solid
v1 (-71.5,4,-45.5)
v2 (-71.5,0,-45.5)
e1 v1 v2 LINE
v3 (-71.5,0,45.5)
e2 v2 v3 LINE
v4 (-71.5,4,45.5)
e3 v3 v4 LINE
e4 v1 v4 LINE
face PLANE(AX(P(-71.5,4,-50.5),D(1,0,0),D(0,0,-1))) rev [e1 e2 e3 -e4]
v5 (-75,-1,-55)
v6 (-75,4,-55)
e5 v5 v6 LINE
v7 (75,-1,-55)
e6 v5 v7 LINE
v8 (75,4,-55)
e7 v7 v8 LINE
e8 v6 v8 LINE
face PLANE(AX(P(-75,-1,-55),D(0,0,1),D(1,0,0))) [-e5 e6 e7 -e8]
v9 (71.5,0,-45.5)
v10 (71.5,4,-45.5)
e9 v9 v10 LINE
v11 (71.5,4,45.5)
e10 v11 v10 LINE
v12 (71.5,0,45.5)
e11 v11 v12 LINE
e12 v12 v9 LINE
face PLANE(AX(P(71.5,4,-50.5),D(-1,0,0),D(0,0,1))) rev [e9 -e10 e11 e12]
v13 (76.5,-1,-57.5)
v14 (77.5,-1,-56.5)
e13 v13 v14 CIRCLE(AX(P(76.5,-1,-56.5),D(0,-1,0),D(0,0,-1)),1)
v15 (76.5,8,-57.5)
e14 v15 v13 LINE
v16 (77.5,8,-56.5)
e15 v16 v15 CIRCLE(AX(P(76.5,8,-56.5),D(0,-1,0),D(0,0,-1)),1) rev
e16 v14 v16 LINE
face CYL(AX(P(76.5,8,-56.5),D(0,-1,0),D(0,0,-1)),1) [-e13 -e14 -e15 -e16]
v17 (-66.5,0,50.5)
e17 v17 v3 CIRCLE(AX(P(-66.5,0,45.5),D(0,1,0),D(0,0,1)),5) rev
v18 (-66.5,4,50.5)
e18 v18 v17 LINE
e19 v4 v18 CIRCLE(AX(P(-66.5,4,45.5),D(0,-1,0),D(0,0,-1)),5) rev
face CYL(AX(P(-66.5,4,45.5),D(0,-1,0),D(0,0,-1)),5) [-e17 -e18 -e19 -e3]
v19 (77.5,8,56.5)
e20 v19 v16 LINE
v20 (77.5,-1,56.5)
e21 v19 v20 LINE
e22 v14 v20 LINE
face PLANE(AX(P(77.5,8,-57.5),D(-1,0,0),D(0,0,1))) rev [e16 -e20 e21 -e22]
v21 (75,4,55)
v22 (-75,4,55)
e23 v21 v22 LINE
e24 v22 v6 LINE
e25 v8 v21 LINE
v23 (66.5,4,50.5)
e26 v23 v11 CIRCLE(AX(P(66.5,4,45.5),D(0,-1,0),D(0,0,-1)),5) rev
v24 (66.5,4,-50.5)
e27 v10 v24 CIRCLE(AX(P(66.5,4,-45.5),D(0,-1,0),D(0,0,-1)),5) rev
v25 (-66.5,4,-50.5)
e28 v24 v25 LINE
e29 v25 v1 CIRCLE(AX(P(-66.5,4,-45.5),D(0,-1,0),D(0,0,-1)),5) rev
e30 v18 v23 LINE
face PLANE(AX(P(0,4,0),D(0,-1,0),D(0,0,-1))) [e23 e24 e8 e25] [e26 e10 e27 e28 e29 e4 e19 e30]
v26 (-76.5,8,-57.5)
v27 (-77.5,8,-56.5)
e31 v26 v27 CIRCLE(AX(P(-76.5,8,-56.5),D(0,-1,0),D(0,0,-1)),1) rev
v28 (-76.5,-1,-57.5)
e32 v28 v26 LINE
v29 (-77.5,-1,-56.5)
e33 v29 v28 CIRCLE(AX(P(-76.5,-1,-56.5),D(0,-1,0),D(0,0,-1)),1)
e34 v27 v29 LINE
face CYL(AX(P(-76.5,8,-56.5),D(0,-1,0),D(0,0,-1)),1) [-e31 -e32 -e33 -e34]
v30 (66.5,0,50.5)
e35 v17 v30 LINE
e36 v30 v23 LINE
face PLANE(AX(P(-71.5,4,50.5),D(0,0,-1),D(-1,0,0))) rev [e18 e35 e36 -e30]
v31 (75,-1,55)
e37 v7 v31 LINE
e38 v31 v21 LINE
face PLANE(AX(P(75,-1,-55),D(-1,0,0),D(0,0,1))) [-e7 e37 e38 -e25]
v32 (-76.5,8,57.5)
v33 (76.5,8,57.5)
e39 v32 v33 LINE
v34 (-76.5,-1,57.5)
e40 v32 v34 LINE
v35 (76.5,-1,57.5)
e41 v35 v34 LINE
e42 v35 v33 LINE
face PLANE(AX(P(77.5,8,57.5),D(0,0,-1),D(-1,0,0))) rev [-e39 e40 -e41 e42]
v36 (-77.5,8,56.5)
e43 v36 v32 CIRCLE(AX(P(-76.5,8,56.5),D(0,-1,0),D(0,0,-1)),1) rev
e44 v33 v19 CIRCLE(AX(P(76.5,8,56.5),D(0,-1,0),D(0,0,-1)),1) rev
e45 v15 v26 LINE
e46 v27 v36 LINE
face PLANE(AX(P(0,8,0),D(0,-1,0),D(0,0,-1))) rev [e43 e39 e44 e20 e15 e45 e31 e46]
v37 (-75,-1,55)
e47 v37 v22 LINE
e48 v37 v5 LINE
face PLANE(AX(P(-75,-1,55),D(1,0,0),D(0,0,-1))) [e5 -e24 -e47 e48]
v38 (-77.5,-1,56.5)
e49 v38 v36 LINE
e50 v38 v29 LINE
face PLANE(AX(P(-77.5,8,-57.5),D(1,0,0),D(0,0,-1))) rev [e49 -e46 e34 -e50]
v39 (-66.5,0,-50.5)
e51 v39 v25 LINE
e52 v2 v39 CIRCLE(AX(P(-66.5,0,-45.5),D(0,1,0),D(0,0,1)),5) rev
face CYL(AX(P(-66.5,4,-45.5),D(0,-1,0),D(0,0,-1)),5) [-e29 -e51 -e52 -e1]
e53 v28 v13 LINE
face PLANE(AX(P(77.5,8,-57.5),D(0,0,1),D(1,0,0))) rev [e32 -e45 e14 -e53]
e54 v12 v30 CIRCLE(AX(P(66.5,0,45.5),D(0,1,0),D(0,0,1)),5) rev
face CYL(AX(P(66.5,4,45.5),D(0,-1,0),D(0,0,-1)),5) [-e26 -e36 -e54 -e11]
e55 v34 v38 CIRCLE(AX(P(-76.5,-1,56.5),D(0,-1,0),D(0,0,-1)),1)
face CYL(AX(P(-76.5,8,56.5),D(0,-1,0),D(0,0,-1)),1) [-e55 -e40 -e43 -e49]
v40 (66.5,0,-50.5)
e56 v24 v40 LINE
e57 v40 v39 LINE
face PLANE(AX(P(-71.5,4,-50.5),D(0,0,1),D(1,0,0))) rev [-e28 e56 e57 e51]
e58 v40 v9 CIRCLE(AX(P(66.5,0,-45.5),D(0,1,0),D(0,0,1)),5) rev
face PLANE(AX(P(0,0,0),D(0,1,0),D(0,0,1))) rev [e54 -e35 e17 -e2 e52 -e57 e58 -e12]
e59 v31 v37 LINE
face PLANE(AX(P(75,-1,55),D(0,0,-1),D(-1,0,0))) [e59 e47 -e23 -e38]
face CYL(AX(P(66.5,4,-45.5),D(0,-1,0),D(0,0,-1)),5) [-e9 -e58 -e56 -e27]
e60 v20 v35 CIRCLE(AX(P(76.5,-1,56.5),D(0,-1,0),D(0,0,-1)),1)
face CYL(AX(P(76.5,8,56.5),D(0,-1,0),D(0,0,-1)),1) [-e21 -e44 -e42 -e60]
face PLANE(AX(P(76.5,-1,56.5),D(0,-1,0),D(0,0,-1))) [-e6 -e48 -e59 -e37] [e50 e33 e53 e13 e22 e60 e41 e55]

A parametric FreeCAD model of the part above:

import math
import FreeCAD as App
import Part
import Sketcher
from FreeCAD import Vector


def edges_at(feature, points):
    """Names of the edges that pass closest to the given points."""
    edges = feature.Shape.Edges
    near = lambda p: min(range(len(edges)), key=lambda i: edges[i].distToShape(Part.Vertex(*p))[0])
    return sorted({f"Edge{near(p) + 1}" for p in points})


def add_polygon(sketch, points):
    """Adds a closed chain of lines whose ends are joined by coincident constraints."""
    first, n = sketch.GeometryCount, len(points)
    for a, b in zip(points, points[1:] + points[:1]):
        sketch.addGeometry(Part.LineSegment(App.Vector(*a, 0), App.Vector(*b, 0)), False)
    for i in range(n):
        sketch.addConstraint(Sketcher.Constraint("Coincident", first + i, 2, first + (i + 1) % n, 1))

doc = App.newDocument("Part")
body = doc.addObject("PartDesign::Body", "Body")

# Sketch on XZ plane
sketch1 = body.newObject("Sketcher::SketchObject", "Sketch")
sketch1.AttachmentSupport = (doc.getObject("XZ_Plane"), [""])
sketch1.MapMode = "FlatFace"
add_polygon(sketch1, [(-72, -50), (-72, 50), (72, 50), (72, -50)])  # lines 0-3
sketch1.addConstraint([
    Sketcher.Constraint("Vertical", 0),
    Sketcher.Constraint("Horizontal", 1),
    Sketcher.Constraint("Vertical", 2),
    Sketcher.Constraint("Horizontal", 3),
    Sketcher.Constraint("Symmetric", 0, 2, 2, 2, -1, 1),
    Sketcher.Constraint("DistanceX", 1, 1, 1, 2, 143.0),
    Sketcher.Constraint("DistanceY", 0, 1, 0, 2, 101.0),
])
pad1 = body.newObject("PartDesign::Pad", "Pad")
pad1.Profile = sketch1
pad1.Length = 4
pad1.Reversed = True

# Sketch on XZ plane
sketch2 = body.newObject("Sketcher::SketchObject", "Sketch001")
sketch2.AttachmentSupport = (doc.getObject("XZ_Plane"), [""])
sketch2.MapMode = "FlatFace"
sketch2.AttachmentOffset = App.Placement(Vector(0, 0, -4), App.Rotation())
add_polygon(sketch2, [(-78, -58), (-78, 58), (78, 58), (78, -58)])  # lines 0-3
sketch2.addConstraint([
    Sketcher.Constraint("Vertical", 0),
    Sketcher.Constraint("Horizontal", 1),
    Sketcher.Constraint("Vertical", 2),
    Sketcher.Constraint("Horizontal", 3),
    Sketcher.Constraint("Symmetric", 0, 2, 2, 2, -1, 1),
    Sketcher.Constraint("DistanceX", 1, 1, 1, 2, 155.0),
    Sketcher.Constraint("DistanceY", 0, 1, 0, 2, 115.0),
])
pad2 = body.newObject("PartDesign::Pad", "Pad001")
pad2.Profile = sketch2
pad2.Length = 4
pad2.Reversed = True
doc.recompute()

fillet = body.newObject("PartDesign::Fillet", "Fillet")
fillet.Base = (pad2, edges_at(pad2, [
    (71.5, 2, 50.5),
    (-71.5, 2, 50.5),
    (-71.5, 2, -50.5),
    (71.5, 2, -50.5),
]))
fillet.Radius = 5
doc.recompute()

fillet2 = body.newObject("PartDesign::Fillet", "Fillet001")
fillet2.Base = (fillet, edges_at(fillet, [
    (-77.5, 6, -57.5),
    (-77.5, 6, 57.5),
    (77.5, 6, 57.5),
    (77.5, 6, -57.5),
]))
fillet2.Radius = 1

# Sketch on XZ plane
sketch3 = body.newObject("Sketcher::SketchObject", "Sketch002")
sketch3.AttachmentSupport = (doc.getObject("XZ_Plane"), [""])
sketch3.MapMode = "FlatFace"
sketch3.AttachmentOffset = App.Placement(Vector(0, 0, -4), App.Rotation())
sketch3.addGeometry(Part.LineSegment(Vector(76.5, 57.5, 0), Vector(-76.5, 57.5, 0)), False)  # 0
sketch3.addGeometry(Part.ArcOfCircle(Part.Circle(Vector(-76.5, 56.5, 0), Vector(0, 0, 1), 1), math.radians(90), math.radians(180)), False)  # 1
sketch3.addGeometry(Part.LineSegment(Vector(-77.5, 56.5, 0), Vector(-77.5, -56.5, 0)), False)  # 2
sketch3.addGeometry(Part.ArcOfCircle(Part.Circle(Vector(-76.5, -56.5, 0), Vector(0, 0, 1), 1), math.radians(-180), math.radians(-90)), False)  # 3
sketch3.addGeometry(Part.LineSegment(Vector(-76.5, -57.5, 0), Vector(76.5, -57.5, 0)), False)  # 4
sketch3.addGeometry(Part.ArcOfCircle(Part.Circle(Vector(76.5, -56.5, 0), Vector(0, 0, 1), 1), math.radians(-90), math.radians(0)), False)  # 5
sketch3.addGeometry(Part.LineSegment(Vector(77.5, -56.5, 0), Vector(77.5, 56.5, 0)), False)  # 6
sketch3.addGeometry(Part.ArcOfCircle(Part.Circle(Vector(76.5, 56.5, 0), Vector(0, 0, 1), 1), math.radians(0), math.radians(90)), False)  # 7
add_polygon(sketch3, [(-75, 55), (75, 55), (75, -55), (-75, -55)])  # lines 8-11
sketch3.addConstraint([
    Sketcher.Constraint("Tangent", 0, 2, 1, 1),
    Sketcher.Constraint("Tangent", 1, 2, 2, 1),
    Sketcher.Constraint("Tangent", 2, 2, 3, 1),
    Sketcher.Constraint("Tangent", 3, 2, 4, 1),
    Sketcher.Constraint("Tangent", 4, 2, 5, 1),
    Sketcher.Constraint("Tangent", 5, 2, 6, 1),
    Sketcher.Constraint("Tangent", 6, 2, 7, 1),
    Sketcher.Constraint("Tangent", 7, 2, 0, 1),
    Sketcher.Constraint("Horizontal", 0),
    Sketcher.Constraint("Vertical", 2),
    Sketcher.Constraint("Horizontal", 4),
    Sketcher.Constraint("Vertical", 6),
    Sketcher.Constraint("Horizontal", 8),
    Sketcher.Constraint("Vertical", 9),
    Sketcher.Constraint("Horizontal", 10),
    Sketcher.Constraint("Vertical", 11),
    Sketcher.Constraint("Equal", 1, 3),
    Sketcher.Constraint("Equal", 3, 5),
    Sketcher.Constraint("Equal", 5, 7),
    Sketcher.Constraint("Symmetric", 1, 3, 5, 3, -1, 1),
    Sketcher.Constraint("Symmetric", 8, 2, 10, 2, -1, 1),
    Sketcher.Constraint("Radius", 1, 1.0),
    Sketcher.Constraint("DistanceX", 0, 2, 0, 1, 153.0),
    Sketcher.Constraint("DistanceX", 8, 1, 8, 2, 150.0),
    Sketcher.Constraint("DistanceY", 2, 2, 2, 1, 113.0),
    Sketcher.Constraint("DistanceY", 9, 2, 9, 1, 110.0),
])
pad3 = body.newObject("PartDesign::Pad", "Pad002")
pad3.Profile = sketch3
pad3.Length = 5

doc.recompute()
